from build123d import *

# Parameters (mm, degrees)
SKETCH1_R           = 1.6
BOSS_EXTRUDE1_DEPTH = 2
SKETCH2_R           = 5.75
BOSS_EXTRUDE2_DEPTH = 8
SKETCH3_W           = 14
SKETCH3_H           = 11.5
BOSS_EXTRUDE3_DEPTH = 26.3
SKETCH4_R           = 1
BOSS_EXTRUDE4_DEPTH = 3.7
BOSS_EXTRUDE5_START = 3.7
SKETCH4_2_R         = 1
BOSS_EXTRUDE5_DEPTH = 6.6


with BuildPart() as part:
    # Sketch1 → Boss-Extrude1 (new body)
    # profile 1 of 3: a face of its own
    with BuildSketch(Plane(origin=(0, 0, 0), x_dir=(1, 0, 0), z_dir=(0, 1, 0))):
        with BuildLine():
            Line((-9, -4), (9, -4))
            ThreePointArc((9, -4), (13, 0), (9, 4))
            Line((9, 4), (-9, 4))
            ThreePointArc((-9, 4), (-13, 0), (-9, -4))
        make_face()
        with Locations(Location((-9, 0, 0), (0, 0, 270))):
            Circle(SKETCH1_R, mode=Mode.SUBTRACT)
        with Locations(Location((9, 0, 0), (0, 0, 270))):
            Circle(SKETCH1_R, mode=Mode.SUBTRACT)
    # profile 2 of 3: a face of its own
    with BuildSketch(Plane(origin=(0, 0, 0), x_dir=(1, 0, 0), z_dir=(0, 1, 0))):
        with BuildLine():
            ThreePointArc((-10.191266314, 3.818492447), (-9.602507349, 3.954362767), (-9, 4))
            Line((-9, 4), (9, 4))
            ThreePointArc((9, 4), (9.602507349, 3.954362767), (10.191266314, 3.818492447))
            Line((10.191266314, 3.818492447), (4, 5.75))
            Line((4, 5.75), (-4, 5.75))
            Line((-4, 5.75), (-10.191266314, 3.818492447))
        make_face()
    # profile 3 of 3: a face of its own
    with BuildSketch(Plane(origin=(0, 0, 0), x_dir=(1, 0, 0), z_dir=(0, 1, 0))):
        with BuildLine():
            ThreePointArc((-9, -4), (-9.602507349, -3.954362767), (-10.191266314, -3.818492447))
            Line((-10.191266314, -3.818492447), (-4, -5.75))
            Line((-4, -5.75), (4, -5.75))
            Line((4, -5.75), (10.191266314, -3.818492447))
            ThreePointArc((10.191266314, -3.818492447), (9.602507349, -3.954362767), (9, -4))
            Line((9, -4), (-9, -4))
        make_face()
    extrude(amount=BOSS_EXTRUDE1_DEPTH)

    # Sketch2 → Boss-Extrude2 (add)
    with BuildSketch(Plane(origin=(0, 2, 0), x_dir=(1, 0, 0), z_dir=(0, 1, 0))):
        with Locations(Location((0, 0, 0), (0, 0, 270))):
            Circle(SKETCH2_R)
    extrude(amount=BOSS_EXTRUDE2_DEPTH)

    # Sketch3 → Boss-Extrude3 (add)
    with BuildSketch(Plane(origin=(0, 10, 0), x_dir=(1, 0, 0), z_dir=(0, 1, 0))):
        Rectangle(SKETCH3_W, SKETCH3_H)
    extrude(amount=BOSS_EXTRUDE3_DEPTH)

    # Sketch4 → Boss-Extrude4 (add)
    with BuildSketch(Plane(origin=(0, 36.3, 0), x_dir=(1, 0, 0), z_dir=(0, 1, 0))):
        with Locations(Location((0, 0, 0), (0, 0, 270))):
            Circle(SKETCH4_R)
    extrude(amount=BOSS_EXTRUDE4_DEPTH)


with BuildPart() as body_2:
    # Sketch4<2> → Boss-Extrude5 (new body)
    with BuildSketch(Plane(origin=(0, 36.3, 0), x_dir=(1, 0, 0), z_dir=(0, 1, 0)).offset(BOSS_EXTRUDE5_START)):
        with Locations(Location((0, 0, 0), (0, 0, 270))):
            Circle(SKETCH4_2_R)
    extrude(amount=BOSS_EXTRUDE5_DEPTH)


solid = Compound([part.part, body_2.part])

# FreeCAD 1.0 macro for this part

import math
import FreeCAD as App
import Part
import Sketcher
Q = App.Units.Quantity

doc = App.newDocument("Part")
body = doc.addObject("PartDesign::Body", "Body")

# Sketch on XZ plane
sketch1 = body.newObject("Sketcher::SketchObject", "Sketch")
sketch1.AttachmentSupport = (doc.getObject("XZ_Plane"), [""])
sketch1.MapMode = "FlatFace"
sketch1.addGeometry(Part.ArcOfCircle(Part.Circle(App.Vector(-9, 0, 0), App.Vector(0, 0, 1), 4), math.radians(107), math.radians(253)), False)
sketch1.addGeometry(Part.LineSegment(App.Vector(-10.2, 3.8, 0), App.Vector(-4, 5.8, 0)), False)
sketch1.addGeometry(Part.LineSegment(App.Vector(-4, 5.8, 0), App.Vector(4, 5.8, 0)), False)
sketch1.addGeometry(Part.LineSegment(App.Vector(4, 5.8, 0), App.Vector(10.2, 3.8, 0)), False)
sketch1.addGeometry(Part.ArcOfCircle(Part.Circle(App.Vector(9, 0, 0), App.Vector(0, 0, 1), 4), math.radians(-73), math.radians(73)), False)
sketch1.addGeometry(Part.LineSegment(App.Vector(10.2, -3.8, 0), App.Vector(4, -5.8, 0)), False)
sketch1.addGeometry(Part.LineSegment(App.Vector(4, -5.8, 0), App.Vector(-4, -5.8, 0)), False)
sketch1.addGeometry(Part.LineSegment(App.Vector(-4, -5.8, 0), App.Vector(-10.2, -3.8, 0)), False)
sketch1.addGeometry(Part.Circle(App.Vector(-9, 0, 0), App.Vector(0, 0, 1), 1.6), False)
sketch1.addGeometry(Part.Circle(App.Vector(9, 0, 0), App.Vector(0, 0, 1), 1.6), False)
sketch1.addConstraint(Sketcher.Constraint("Tangent", 0, 1, 1, 1))
sketch1.addConstraint(Sketcher.Constraint("Coincident", 1, 2, 2, 1))
sketch1.addConstraint(Sketcher.Constraint("Coincident", 2, 2, 3, 1))
sketch1.addConstraint(Sketcher.Constraint("Tangent", 3, 2, 4, 2))
sketch1.addConstraint(Sketcher.Constraint("Tangent", 4, 1, 5, 1))
sketch1.addConstraint(Sketcher.Constraint("Coincident", 5, 2, 6, 1))
sketch1.addConstraint(Sketcher.Constraint("Coincident", 6, 2, 7, 1))
sketch1.addConstraint(Sketcher.Constraint("Tangent", 7, 2, 0, 2))
sketch1.addConstraint(Sketcher.Constraint("Horizontal", 2))
sketch1.addConstraint(Sketcher.Constraint("Horizontal", 6))
sketch1.addConstraint(Sketcher.Constraint("Coincident", 8, 3, 0, 3))
sketch1.addConstraint(Sketcher.Constraint("Coincident", 9, 3, 4, 3))
sketch1.addConstraint(Sketcher.Constraint("Equal", 0, 4))
sketch1.addConstraint(Sketcher.Constraint("Equal", 8, 9))
sketch1.addConstraint(Sketcher.Constraint("Symmetric", 0, 3, 4, 3, -1, 1))
sketch1.addConstraint(Sketcher.Constraint("Symmetric", 1, 2, 5, 2, -1, 1))
sketch1.addConstraint(Sketcher.Constraint("Symmetric", 0, 1, 3, 2, -2))
sketch1.addConstraint(Sketcher.Constraint("Parallel", 3, 7))
sketch1.addConstraint(Sketcher.Constraint("Radius", 0, Q("4 mm")))
sketch1.addConstraint(Sketcher.Constraint("Diameter", 8, Q("3.2 mm")))
sketch1.addConstraint(Sketcher.Constraint("DistanceX", 2, 1, 2, 2, Q("8 mm")))
sketch1.addConstraint(Sketcher.Constraint("DistanceX", 0, 3, -1, 1, Q("9 mm")))
sketch1.addConstraint(Sketcher.Constraint("DistanceY", 5, 2, 2, 2, Q("11.5 mm")))
pad1 = body.newObject("PartDesign::Pad", "Pad")
pad1.Profile = sketch1
pad1.Length = 2
pad1.Reversed = True

# Sketch on XZ plane
sketch2 = body.newObject("Sketcher::SketchObject", "Sketch001")
sketch2.AttachmentSupport = (doc.getObject("XZ_Plane"), [""])
sketch2.MapMode = "FlatFace"
sketch2.AttachmentOffset = App.Placement(App.Vector(0, 0, -2), App.Rotation())
sketch2.addGeometry(Part.Circle(App.Vector(0, 0, 0), App.Vector(0, 0, 1), 6), False)
sketch2.addConstraint(Sketcher.Constraint("Coincident", 0, 3, -1, 1))
sketch2.addConstraint(Sketcher.Constraint("Diameter", 0, Q("11.5 mm")))
pad2 = body.newObject("PartDesign::Pad", "Pad001")
pad2.Profile = sketch2
pad2.Length = 8
pad2.Reversed = True

# Sketch on XZ plane
sketch3 = body.newObject("Sketcher::SketchObject", "Sketch002")
sketch3.AttachmentSupport = (doc.getObject("XZ_Plane"), [""])
sketch3.MapMode = "FlatFace"
sketch3.AttachmentOffset = App.Placement(App.Vector(0, 0, -10), App.Rotation())
sketch3.addGeometry(Part.LineSegment(App.Vector(-7, -6, 0), App.Vector(-7, 6, 0)), False)
sketch3.addGeometry(Part.LineSegment(App.Vector(-7, 6, 0), App.Vector(7, 6, 0)), False)
sketch3.addGeometry(Part.LineSegment(App.Vector(7, 6, 0), App.Vector(7, -6, 0)), False)
sketch3.addGeometry(Part.LineSegment(App.Vector(7, -6, 0), App.Vector(-7, -6, 0)), False)
sketch3.addConstraint(Sketcher.Constraint("Coincident", 0, 2, 1, 1))
sketch3.addConstraint(Sketcher.Constraint("Coincident", 1, 2, 2, 1))
sketch3.addConstraint(Sketcher.Constraint("Coincident", 2, 2, 3, 1))
sketch3.addConstraint(Sketcher.Constraint("Coincident", 3, 2, 0, 1))
sketch3.addConstraint(Sketcher.Constraint("Vertical", 0))
sketch3.addConstraint(Sketcher.Constraint("Horizontal", 1))
sketch3.addConstraint(Sketcher.Constraint("Vertical", 2))
sketch3.addConstraint(Sketcher.Constraint("Horizontal", 3))
sketch3.addConstraint(Sketcher.Constraint("Symmetric", 0, 2, 2, 2, -1, 1))
sketch3.addConstraint(Sketcher.Constraint("DistanceX", 1, 1, 1, 2, Q("14 mm")))
sketch3.addConstraint(Sketcher.Constraint("DistanceY", 0, 1, 0, 2, Q("11.5 mm")))
pad3 = body.newObject("PartDesign::Pad", "Pad002")
pad3.Profile = sketch3
pad3.Length = 26.3
pad3.Reversed = True

# Sketch on XZ plane
sketch4 = body.newObject("Sketcher::SketchObject", "Sketch003")
sketch4.AttachmentSupport = (doc.getObject("XZ_Plane"), [""])
sketch4.MapMode = "FlatFace"
sketch4.AttachmentOffset = App.Placement(App.Vector(0, 0, -36.3), App.Rotation())
sketch4.addGeometry(Part.Circle(App.Vector(0, 0, 0), App.Vector(0, 0, 1), 1), False)
sketch4.addConstraint(Sketcher.Constraint("Coincident", 0, 3, -1, 1))
sketch4.addConstraint(Sketcher.Constraint("Diameter", 0, Q("2 mm")))
pad4 = body.newObject("PartDesign::Pad", "Pad003")
pad4.Profile = sketch4
pad4.Length = 3.7
pad4.Reversed = True
body2 = doc.addObject("PartDesign::Body", "Body001")

# Sketch on XZ plane
sketch5 = body2.newObject("Sketcher::SketchObject", "Sketch004")
sketch5.AttachmentSupport = (doc.getObject("XZ_Plane001"), [""])
sketch5.MapMode = "FlatFace"
sketch5.AttachmentOffset = App.Placement(App.Vector(0, 0, -40), App.Rotation())
sketch5.addGeometry(Part.Circle(App.Vector(0, 0, 0), App.Vector(0, 0, 1), 1), False)
sketch5.addConstraint(Sketcher.Constraint("Coincident", 0, 3, -1, 1))
sketch5.addConstraint(Sketcher.Constraint("Diameter", 0, Q("2 mm")))
pad5 = body2.newObject("PartDesign::Pad", "Pad004")
pad5.Profile = sketch5
pad5.Length = 6.6
pad5.Reversed = True

doc.recompute()
